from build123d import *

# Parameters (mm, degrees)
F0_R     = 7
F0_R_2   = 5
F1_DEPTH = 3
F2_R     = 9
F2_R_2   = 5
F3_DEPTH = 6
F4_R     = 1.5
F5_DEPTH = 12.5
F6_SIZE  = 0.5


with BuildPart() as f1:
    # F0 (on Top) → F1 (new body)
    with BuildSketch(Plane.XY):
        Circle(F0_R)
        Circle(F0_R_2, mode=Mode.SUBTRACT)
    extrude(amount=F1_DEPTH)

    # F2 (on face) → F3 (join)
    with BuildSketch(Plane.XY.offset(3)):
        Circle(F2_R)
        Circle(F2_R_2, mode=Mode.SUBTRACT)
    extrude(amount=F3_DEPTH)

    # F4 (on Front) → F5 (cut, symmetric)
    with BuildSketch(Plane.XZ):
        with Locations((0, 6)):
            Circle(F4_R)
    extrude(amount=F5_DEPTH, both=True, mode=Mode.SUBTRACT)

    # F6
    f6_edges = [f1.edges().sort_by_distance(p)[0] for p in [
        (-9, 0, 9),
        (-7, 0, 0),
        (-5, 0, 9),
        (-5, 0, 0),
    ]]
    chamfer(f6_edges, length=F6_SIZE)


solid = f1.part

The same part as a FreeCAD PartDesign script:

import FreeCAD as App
import Part
import Sketcher
from FreeCAD import Vector


def edges_at(feature, points):
    """Names of the edges that pass closest to the given points."""
    edges = feature.Shape.Edges
    near = lambda p: min(range(len(edges)), key=lambda i: edges[i].distToShape(Part.Vertex(*p))[0])
    return sorted({f"Edge{near(p) + 1}" for p in points})

doc = App.newDocument("Part")
body = doc.addObject("PartDesign::Body", "Body")

# Sketch on XY plane
sketch1 = body.newObject("Sketcher::SketchObject", "Sketch")
sketch1.AttachmentSupport = (doc.getObject("XY_Plane"), [""])
sketch1.MapMode = "FlatFace"
sketch1.addGeometry(Part.Circle(Vector(0, 0, 0), Vector(0, 0, 1), 7), False)
sketch1.addGeometry(Part.Circle(Vector(0, 0, 0), Vector(0, 0, 1), 5), False)
sketch1.addConstraint(Sketcher.Constraint("Coincident", 0, 3, -1, 1))
sketch1.addConstraint(Sketcher.Constraint("Coincident", 1, 3, -1, 1))
sketch1.addConstraint(Sketcher.Constraint("Diameter", 0, 14.0))
sketch1.addConstraint(Sketcher.Constraint("Diameter", 1, 10.0))
pad1 = body.newObject("PartDesign::Pad", "Pad")
pad1.Profile = sketch1
pad1.Length = 3

# Sketch on XY plane
sketch2 = body.newObject("Sketcher::SketchObject", "Sketch001")
sketch2.AttachmentSupport = (doc.getObject("XY_Plane"), [""])
sketch2.MapMode = "FlatFace"
sketch2.AttachmentOffset = App.Placement(Vector(0, 0, 3), App.Rotation())
sketch2.addGeometry(Part.Circle(Vector(0, 0, 0), Vector(0, 0, 1), 9), False)
sketch2.addGeometry(Part.Circle(Vector(0, 0, 0), Vector(0, 0, 1), 5), False)
sketch2.addConstraint(Sketcher.Constraint("Coincident", 0, 3, -1, 1))
sketch2.addConstraint(Sketcher.Constraint("Coincident", 1, 3, -1, 1))
sketch2.addConstraint(Sketcher.Constraint("Diameter", 0, 18.0))
sketch2.addConstraint(Sketcher.Constraint("Diameter", 1, 10.0))
pad2 = body.newObject("PartDesign::Pad", "Pad001")
pad2.Profile = sketch2
pad2.Length = 6

# Sketch on XZ plane
sketch3 = body.newObject("Sketcher::SketchObject", "Sketch002")
sketch3.AttachmentSupport = (doc.getObject("XZ_Plane"), [""])
sketch3.MapMode = "FlatFace"
sketch3.addGeometry(Part.Circle(Vector(0, 6, 0), Vector(0, 0, 1), 1.5), False)
sketch3.addConstraint(Sketcher.Constraint("PointOnObject", 0, 3, -2))
sketch3.addConstraint(Sketcher.Constraint("Diameter", 0, 3.0))
sketch3.addConstraint(Sketcher.Constraint("DistanceY", -1, 1, 0, 3, 6.0))
pocket1 = body.newObject("PartDesign::Pocket", "Pocket")
pocket1.Profile = sketch3
pocket1.Length = 25
pocket1.Midplane = True
doc.recompute()

chamfer = body.newObject("PartDesign::Chamfer", "Chamfer")
chamfer.Base = (pocket1, edges_at(pocket1, [
    (-9, 0, 9),
    (-7, 0, 0),
    (-5, 0, 9),
    (-5, 0, 0),
]))
chamfer.Size = 0.5

doc.recompute()
